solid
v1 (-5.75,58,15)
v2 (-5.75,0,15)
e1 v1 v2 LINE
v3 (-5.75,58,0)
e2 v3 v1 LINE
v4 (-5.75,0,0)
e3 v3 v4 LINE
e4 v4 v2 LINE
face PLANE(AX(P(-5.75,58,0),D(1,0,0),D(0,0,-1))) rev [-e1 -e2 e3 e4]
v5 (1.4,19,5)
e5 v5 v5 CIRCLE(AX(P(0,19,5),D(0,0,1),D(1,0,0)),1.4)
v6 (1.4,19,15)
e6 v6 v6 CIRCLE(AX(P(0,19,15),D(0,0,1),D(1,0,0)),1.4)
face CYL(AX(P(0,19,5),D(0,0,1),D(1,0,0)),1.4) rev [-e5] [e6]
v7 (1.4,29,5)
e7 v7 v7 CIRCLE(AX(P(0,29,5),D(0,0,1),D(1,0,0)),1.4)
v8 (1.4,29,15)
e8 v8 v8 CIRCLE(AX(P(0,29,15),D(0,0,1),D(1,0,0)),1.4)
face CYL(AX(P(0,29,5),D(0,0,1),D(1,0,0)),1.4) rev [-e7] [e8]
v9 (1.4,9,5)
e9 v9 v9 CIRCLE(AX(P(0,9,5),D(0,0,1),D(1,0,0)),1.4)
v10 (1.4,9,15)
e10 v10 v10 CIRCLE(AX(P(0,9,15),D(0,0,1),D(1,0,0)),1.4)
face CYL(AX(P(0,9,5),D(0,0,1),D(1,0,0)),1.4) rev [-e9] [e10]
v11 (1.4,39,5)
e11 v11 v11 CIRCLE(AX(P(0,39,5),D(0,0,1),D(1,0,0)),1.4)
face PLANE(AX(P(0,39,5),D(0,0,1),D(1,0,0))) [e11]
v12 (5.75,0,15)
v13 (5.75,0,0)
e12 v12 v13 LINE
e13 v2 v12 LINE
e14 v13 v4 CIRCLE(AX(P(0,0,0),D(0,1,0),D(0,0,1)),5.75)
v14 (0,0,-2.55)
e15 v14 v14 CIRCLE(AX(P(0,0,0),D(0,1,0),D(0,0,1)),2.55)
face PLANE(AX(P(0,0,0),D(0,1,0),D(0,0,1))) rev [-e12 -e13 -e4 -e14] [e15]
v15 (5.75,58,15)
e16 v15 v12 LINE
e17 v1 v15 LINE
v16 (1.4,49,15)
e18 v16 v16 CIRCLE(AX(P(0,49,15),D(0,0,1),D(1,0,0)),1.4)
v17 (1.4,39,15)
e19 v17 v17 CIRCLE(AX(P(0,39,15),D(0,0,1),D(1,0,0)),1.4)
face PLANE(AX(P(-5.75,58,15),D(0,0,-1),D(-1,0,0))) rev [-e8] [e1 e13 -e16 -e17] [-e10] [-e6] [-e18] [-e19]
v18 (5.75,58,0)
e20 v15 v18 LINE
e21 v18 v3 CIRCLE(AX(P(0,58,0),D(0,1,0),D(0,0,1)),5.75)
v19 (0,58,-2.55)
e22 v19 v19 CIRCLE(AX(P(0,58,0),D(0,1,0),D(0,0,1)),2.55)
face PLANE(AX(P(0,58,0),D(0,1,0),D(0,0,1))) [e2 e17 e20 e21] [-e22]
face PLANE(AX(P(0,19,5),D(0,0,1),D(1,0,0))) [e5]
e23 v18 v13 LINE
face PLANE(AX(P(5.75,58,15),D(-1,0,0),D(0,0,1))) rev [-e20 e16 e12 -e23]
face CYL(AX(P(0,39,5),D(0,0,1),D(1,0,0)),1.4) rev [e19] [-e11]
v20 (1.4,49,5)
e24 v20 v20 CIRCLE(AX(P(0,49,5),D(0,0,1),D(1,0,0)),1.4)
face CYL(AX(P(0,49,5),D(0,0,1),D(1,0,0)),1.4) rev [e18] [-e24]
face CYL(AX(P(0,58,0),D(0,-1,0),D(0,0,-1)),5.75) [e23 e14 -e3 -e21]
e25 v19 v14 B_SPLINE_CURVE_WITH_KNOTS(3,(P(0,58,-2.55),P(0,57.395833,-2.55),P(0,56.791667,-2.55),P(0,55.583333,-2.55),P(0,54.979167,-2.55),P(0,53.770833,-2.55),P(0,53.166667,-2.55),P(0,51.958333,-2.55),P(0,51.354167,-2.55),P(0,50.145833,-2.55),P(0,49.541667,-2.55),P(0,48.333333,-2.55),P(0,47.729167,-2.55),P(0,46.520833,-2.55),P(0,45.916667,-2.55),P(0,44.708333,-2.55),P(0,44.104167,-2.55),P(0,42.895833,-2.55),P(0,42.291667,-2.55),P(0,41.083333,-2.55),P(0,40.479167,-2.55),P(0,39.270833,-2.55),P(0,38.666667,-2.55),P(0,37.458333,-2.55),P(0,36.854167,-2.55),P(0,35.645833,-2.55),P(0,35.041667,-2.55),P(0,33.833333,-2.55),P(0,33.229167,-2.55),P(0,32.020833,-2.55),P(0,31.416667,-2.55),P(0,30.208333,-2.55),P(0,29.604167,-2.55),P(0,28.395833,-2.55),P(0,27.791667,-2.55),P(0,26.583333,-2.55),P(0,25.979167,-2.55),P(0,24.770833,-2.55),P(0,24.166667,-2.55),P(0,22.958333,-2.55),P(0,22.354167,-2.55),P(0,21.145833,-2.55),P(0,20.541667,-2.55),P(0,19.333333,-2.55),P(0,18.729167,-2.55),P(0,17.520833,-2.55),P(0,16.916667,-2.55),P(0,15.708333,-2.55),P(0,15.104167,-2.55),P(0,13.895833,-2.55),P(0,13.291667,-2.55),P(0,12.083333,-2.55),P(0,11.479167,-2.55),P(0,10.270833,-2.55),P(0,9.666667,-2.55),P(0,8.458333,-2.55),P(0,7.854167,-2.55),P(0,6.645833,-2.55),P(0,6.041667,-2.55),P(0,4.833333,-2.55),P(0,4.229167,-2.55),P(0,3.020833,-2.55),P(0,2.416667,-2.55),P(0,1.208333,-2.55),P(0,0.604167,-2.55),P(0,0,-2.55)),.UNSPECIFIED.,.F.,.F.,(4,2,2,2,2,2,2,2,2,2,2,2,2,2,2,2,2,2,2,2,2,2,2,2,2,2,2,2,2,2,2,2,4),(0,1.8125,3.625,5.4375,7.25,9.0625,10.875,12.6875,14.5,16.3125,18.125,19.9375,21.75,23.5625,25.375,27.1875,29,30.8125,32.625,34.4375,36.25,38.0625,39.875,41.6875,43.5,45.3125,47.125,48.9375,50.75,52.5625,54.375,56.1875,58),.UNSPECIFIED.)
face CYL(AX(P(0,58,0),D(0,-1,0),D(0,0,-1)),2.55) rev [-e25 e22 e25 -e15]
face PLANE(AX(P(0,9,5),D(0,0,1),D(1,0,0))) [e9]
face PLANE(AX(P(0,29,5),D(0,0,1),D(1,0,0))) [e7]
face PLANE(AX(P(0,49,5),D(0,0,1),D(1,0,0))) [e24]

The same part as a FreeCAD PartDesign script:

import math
import FreeCAD as App
import Part
import Sketcher
from FreeCAD import Vector

doc = App.newDocument("Part")
body = doc.addObject("PartDesign::Body", "Body")

# Sketch on XZ plane
sketch1 = doc.addObject("Sketcher::SketchObject", "Sketch")
body.addObject(sketch1)
sketch1.AttachmentSupport = (doc.XZ_Plane, [""])
sketch1.MapMode = "FlatFace"
sketch1.addGeometry([
    Part.LineSegment(Vector(-5.8, 0, 0), Vector(-5.8, 15, 0)),  # 0
    Part.LineSegment(Vector(-5.8, 15, 0), Vector(5.8, 15, 0)),  # 1
    Part.LineSegment(Vector(5.8, 15, 0), Vector(5.8, 0, 0)),  # 2
    Part.ArcOfCircle(Part.Circle(Vector(0, 0, 0), Vector(0, 0, 1), 5.8), math.radians(180), math.radians(360)),  # 3
    Part.Circle(Vector(0, 0, 0), Vector(0, 0, 1), 2.5),  # 4
], False)
sketch1.addConstraint([
    Sketcher.Constraint("Coincident", 0, 2, 1, 1),
    Sketcher.Constraint("Coincident", 1, 2, 2, 1),
    Sketcher.Constraint("Tangent", 2, 2, 3, 2),
    Sketcher.Constraint("Tangent", 3, 1, 0, 1),
    Sketcher.Constraint("Vertical", 0),
    Sketcher.Constraint("Horizontal", 1),
    Sketcher.Constraint("Vertical", 2),
    Sketcher.Constraint("Coincident", 3, 3, -1, 1),
    Sketcher.Constraint("Coincident", 4, 3, -1, 1),
    Sketcher.Constraint("Diameter", 4, 5.1),
    Sketcher.Constraint("DistanceY", 0, 1, 0, 2, 15.0),
    Sketcher.Constraint("Radius", 3, 5.75),
])
pad1 = doc.addObject("PartDesign::Pad", "Pad")
body.addObject(pad1)
pad1.Profile = sketch1
pad1.Length = 58
pad1.Reversed = True

# Sketch on XY plane
sketch2 = doc.addObject("Sketcher::SketchObject", "Sketch001")
body.addObject(sketch2)
sketch2.AttachmentSupport = (doc.XY_Plane, [""])
sketch2.MapMode = "FlatFace"
sketch2.AttachmentOffset = App.Placement(Vector(0, 0, 15), App.Rotation())
sketch2.addGeometry([
    Part.Circle(Vector(0, 49, 0), Vector(0, 0, 1), 1.4),  # 0
    Part.Circle(Vector(0, 39, 0), Vector(0, 0, 1), 1.4),  # 1
    Part.Circle(Vector(0, 29, 0), Vector(0, 0, 1), 1.4),  # 2
    Part.Circle(Vector(0, 19, 0), Vector(0, 0, 1), 1.4),  # 3
    Part.Circle(Vector(0, 9, 0), Vector(0, 0, 1), 1.4),  # 4
], False)
sketch2.addConstraint([
    Sketcher.Constraint("Equal", 0, 1),
    Sketcher.Constraint("Equal", 1, 2),
    Sketcher.Constraint("Equal", 2, 3),
    Sketcher.Constraint("Equal", 3, 4),
    Sketcher.Constraint("PointOnObject", 0, 3, -2),
    Sketcher.Constraint("PointOnObject", 1, 3, -2),
    Sketcher.Constraint("PointOnObject", 2, 3, -2),
    Sketcher.Constraint("PointOnObject", 3, 3, -2),
    Sketcher.Constraint("PointOnObject", 4, 3, -2),
    Sketcher.Constraint("Diameter", 0, 2.8),
    Sketcher.Constraint("DistanceY", -1, 1, 0, 3, 49.0),
    Sketcher.Constraint("DistanceY", -1, 1, 1, 3, 39.0),
    Sketcher.Constraint("DistanceY", -1, 1, 2, 3, 29.0),
    Sketcher.Constraint("DistanceY", -1, 1, 3, 3, 19.0),
    Sketcher.Constraint("DistanceY", -1, 1, 4, 3, 9.0),
])
pocket1 = doc.addObject("PartDesign::Pocket", "Pocket")
body.addObject(pocket1)
pocket1.Profile = sketch2
pocket1.Length = 10

doc.recompute()
